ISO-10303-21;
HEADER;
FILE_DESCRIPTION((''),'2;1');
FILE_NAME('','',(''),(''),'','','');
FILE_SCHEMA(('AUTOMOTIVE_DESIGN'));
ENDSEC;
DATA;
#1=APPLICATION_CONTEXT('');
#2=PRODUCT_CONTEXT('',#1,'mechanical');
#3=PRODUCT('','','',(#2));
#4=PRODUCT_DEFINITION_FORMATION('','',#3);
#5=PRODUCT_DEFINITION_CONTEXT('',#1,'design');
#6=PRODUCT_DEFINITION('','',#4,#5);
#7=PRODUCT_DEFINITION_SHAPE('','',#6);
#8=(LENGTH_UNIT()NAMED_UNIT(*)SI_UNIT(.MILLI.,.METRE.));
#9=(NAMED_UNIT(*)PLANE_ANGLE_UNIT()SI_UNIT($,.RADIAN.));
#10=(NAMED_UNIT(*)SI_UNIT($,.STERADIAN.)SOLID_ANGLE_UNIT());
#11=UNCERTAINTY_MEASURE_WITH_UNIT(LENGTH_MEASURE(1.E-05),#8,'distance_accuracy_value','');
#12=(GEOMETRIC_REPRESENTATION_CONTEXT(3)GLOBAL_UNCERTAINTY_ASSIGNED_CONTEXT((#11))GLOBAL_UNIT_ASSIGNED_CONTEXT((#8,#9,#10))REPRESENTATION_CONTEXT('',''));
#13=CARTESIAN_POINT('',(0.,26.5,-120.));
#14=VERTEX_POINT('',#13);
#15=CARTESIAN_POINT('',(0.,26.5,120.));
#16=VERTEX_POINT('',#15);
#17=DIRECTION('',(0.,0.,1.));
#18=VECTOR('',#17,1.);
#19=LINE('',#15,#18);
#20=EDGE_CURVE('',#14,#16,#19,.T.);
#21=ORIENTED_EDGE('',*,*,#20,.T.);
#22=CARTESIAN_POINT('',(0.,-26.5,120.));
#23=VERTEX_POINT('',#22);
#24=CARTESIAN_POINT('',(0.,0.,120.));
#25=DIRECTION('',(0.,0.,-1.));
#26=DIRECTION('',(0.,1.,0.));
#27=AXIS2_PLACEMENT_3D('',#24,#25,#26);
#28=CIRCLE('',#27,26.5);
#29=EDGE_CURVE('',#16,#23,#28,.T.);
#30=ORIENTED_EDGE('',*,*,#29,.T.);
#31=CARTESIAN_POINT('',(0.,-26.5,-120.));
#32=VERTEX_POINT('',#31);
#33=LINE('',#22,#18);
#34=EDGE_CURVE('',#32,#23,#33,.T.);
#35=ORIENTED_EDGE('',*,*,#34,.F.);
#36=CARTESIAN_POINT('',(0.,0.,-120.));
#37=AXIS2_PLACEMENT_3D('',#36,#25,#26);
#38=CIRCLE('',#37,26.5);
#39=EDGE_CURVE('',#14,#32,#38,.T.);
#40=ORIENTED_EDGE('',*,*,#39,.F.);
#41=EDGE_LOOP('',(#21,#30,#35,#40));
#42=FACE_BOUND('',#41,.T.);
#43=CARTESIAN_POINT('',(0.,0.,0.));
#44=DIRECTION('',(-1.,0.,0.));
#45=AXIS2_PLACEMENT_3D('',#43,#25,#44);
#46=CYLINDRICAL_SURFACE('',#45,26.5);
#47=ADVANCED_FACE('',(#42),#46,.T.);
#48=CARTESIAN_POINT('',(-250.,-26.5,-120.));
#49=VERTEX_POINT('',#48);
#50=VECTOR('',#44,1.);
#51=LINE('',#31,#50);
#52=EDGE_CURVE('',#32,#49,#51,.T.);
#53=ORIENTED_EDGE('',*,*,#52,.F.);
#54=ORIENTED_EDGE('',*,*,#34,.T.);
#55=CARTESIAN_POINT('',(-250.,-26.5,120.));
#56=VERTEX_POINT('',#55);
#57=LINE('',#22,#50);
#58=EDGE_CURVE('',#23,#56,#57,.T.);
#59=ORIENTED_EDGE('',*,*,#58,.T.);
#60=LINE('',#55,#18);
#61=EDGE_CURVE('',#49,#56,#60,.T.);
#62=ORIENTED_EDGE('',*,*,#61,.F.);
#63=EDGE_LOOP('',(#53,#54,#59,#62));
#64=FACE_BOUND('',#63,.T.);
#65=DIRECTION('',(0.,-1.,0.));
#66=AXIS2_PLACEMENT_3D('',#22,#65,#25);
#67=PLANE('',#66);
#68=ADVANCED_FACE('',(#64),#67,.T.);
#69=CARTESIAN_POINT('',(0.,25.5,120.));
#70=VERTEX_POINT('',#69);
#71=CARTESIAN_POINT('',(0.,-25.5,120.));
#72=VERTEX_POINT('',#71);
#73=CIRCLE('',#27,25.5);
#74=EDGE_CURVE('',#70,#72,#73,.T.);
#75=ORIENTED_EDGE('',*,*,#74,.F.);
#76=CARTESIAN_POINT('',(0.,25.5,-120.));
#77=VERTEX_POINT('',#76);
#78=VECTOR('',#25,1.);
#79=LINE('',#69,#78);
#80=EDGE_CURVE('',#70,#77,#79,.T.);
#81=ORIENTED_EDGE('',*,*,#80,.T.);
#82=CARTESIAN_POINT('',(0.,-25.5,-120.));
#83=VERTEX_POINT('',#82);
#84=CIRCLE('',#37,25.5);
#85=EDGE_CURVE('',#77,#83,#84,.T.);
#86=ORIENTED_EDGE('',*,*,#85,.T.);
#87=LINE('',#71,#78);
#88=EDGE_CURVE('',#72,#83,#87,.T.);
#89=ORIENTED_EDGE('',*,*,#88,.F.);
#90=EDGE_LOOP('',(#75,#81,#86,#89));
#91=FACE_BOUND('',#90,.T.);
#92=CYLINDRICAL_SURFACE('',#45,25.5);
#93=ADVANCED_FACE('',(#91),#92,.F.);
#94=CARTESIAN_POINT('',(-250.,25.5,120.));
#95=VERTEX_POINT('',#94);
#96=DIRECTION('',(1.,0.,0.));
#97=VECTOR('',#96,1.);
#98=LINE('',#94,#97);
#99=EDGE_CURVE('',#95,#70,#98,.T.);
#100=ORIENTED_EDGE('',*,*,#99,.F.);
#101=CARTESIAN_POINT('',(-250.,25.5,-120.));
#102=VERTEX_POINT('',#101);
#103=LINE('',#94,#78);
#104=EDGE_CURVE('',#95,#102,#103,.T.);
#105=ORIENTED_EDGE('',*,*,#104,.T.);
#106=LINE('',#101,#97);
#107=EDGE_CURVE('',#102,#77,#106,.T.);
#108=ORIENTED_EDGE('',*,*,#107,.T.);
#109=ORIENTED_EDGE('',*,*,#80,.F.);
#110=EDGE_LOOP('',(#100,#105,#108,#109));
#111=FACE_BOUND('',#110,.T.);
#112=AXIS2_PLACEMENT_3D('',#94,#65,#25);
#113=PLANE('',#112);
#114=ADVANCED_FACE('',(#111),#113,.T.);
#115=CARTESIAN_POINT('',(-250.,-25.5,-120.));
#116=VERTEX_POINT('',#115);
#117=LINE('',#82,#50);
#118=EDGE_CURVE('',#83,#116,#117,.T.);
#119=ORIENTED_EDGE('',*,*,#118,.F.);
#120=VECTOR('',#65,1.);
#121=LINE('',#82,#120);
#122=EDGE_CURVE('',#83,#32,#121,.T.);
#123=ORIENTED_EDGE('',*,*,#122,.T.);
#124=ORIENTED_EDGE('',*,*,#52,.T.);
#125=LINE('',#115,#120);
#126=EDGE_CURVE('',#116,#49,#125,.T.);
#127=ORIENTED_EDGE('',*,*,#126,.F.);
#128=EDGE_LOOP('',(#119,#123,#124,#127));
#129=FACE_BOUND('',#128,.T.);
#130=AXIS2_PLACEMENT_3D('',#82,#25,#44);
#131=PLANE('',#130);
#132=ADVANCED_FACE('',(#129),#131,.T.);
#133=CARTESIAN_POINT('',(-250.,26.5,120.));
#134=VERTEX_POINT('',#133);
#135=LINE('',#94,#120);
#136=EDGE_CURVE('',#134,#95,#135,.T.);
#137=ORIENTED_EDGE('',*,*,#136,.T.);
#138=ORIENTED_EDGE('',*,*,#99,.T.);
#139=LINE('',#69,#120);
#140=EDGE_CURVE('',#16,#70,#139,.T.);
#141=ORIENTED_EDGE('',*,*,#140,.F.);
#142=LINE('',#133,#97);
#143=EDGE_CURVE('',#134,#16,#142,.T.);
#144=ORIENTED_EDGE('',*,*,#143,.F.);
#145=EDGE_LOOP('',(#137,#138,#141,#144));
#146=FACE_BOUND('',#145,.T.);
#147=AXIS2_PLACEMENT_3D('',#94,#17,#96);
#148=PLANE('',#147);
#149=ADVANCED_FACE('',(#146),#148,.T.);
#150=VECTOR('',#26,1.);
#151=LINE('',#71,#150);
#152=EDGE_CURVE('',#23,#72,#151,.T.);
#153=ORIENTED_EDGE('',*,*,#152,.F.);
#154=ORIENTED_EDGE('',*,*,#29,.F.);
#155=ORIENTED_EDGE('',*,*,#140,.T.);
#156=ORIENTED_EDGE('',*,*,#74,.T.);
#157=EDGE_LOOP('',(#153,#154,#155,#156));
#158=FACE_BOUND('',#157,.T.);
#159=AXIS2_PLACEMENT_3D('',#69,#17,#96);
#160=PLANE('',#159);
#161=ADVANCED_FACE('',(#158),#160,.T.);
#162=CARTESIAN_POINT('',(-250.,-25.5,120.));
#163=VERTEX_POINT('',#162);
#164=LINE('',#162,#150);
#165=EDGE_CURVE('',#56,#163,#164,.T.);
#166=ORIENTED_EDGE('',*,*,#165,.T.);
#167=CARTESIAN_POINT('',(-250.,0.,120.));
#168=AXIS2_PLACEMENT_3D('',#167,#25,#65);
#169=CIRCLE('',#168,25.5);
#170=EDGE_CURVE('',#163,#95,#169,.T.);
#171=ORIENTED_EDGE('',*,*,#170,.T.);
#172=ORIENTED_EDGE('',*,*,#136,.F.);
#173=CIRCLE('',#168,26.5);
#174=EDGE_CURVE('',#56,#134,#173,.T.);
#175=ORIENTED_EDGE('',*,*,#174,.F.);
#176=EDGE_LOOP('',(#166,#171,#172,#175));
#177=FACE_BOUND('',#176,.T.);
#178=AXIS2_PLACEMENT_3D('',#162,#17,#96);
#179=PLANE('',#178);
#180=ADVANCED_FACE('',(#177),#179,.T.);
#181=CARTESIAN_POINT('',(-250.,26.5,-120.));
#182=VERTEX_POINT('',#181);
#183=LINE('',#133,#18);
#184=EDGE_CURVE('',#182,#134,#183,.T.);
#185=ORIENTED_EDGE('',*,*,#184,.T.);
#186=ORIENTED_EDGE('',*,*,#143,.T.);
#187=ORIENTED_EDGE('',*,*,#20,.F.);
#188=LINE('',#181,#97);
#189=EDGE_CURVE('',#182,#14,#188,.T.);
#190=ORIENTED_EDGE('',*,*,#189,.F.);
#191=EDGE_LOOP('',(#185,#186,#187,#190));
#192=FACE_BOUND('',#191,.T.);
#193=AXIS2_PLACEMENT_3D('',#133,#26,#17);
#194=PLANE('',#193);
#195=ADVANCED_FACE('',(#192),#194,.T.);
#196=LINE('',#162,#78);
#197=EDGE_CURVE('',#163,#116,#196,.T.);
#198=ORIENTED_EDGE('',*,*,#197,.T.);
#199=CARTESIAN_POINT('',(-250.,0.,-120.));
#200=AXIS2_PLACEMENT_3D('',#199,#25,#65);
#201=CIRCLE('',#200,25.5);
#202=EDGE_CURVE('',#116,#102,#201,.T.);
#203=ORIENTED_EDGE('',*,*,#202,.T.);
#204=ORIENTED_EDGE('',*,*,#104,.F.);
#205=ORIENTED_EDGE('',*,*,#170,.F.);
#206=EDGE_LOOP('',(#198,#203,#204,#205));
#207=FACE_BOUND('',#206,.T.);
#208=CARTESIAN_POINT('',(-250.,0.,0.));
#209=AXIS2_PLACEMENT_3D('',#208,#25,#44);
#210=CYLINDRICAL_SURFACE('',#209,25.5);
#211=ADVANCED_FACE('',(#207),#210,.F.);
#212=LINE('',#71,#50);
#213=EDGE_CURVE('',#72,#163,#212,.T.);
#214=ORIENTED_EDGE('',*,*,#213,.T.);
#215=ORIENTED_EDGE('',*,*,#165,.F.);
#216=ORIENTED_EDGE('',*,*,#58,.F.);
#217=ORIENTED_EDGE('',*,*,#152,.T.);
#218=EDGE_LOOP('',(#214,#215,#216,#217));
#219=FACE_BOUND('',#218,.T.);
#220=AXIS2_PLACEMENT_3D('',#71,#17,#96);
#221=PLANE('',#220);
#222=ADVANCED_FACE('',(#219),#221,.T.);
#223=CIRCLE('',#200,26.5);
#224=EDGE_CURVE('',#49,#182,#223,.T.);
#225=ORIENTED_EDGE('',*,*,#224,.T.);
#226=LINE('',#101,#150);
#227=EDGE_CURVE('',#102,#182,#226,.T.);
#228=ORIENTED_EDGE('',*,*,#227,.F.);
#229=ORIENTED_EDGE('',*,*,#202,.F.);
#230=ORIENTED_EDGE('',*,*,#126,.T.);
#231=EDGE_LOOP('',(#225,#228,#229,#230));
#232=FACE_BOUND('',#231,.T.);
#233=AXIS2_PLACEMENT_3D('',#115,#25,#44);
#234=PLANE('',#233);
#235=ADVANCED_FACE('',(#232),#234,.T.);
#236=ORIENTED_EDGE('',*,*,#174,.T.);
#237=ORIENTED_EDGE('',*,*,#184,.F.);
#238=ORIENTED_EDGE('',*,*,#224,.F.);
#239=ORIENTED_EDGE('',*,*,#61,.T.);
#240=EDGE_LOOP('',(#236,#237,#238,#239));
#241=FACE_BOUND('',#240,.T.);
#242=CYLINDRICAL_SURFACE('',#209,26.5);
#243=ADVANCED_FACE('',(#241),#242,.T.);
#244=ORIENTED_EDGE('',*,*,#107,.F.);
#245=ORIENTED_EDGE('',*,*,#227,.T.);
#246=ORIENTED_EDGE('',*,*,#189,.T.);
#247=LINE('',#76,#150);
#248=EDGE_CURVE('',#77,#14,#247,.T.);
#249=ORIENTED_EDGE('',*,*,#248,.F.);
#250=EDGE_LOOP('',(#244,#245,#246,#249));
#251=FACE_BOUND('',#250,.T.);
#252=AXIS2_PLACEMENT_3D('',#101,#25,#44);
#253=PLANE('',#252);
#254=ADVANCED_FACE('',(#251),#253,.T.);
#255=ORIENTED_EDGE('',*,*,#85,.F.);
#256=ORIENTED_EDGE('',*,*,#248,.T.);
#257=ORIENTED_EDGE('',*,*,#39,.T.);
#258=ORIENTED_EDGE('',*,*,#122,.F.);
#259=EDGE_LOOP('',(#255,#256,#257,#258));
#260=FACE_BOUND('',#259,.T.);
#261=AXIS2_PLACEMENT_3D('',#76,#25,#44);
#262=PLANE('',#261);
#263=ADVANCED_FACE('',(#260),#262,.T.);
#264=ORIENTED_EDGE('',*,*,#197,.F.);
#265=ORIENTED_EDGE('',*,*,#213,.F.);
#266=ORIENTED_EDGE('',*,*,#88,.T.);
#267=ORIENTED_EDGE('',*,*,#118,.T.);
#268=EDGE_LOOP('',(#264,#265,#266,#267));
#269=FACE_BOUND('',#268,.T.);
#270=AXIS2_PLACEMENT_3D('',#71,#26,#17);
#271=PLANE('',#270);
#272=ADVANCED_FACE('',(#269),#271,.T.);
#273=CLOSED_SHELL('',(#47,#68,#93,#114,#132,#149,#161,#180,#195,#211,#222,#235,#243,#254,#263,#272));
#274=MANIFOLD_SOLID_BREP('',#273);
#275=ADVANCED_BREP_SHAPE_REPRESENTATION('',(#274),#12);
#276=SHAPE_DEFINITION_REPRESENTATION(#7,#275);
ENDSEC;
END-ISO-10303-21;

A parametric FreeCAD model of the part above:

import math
import FreeCAD as App
import Part
import Sketcher

V = App.Vector

doc = App.newDocument("Part")
body = doc.addObject("PartDesign::Body", "Body")

sketch1 = doc.addObject("Sketcher::SketchObject", "Sketch")
body.addObject(sketch1)
sketch1.AttachmentSupport = (doc.YZ_Plane, [""])
sketch1.MapMode = "FlatFace"
sketch1.addGeometry([
    Part.LineSegment(V(26.5, 120, 0), V(25.5, 120, 0)),
    Part.LineSegment(V(25.5, 120, 0), V(25.5, -120, 0)),
    Part.LineSegment(V(25.5, -120, 0), V(26.5, -120, 0)),
    Part.LineSegment(V(26.5, -120, 0), V(26.5, 120, 0)),
], False)
sketch1.addConstraint([
    Sketcher.Constraint("Coincident", 0, 2, 1, 1),
    Sketcher.Constraint("Coincident", 1, 2, 2, 1),
    Sketcher.Constraint("Coincident", 2, 2, 3, 1),
    Sketcher.Constraint("Coincident", 3, 2, 0, 1),
    Sketcher.Constraint("Horizontal", 0),
    Sketcher.Constraint("Vertical", 1),
    Sketcher.Constraint("Horizontal", 2),
    Sketcher.Constraint("Vertical", 3),
    Sketcher.Constraint("DistanceX", 0, 2, 0, 1, 1.0),
    Sketcher.Constraint("DistanceY", 1, 2, 1, 1, 240.0),
    Sketcher.Constraint("DistanceY", -1, 1, 0, 2, 120.0),
    Sketcher.Constraint("DistanceX", -1, 1, 0, 2, 25.5),
])

sketch2 = doc.addObject("Sketcher::SketchObject", "Sketch001")
body.addObject(sketch2)
sketch2.AttachmentSupport = (doc.XY_Plane, [""])
sketch2.MapMode = "FlatFace"
sketch2.addGeometry([
    Part.LineSegment(V(-250, -25.5, 0), V(0, -25.5, 0)),
    Part.ArcOfCircle(Part.Circle(V(0, 0, 0), V(0, 0, 1), 25.5), math.radians(-90), math.radians(90)),
    Part.LineSegment(V(0, 25.5, 0), V(-250, 25.5, 0)),
    Part.ArcOfCircle(Part.Circle(V(-250, 0, 0), V(0, 0, 1), 25.5), math.radians(90), math.radians(270)),
], False)
sketch2.addConstraint([
    Sketcher.Constraint("Tangent", 0, 2, 1, 1),
    Sketcher.Constraint("Tangent", 1, 2, 2, 1),
    Sketcher.Constraint("Tangent", 2, 2, 3, 1),
    Sketcher.Constraint("Tangent", 3, 2, 0, 1),
    Sketcher.Constraint("Horizontal", 0),
    Sketcher.Constraint("Horizontal", 2),
    Sketcher.Constraint("Coincident", 1, 3, -1, 1),
    Sketcher.Constraint("Radius", 1, 25.5),
    Sketcher.Constraint("DistanceX", 0, 1, 0, 2, 250.0),
])
doc.recompute()

additivepipe = doc.addObject("PartDesign::AdditivePipe", "AdditivePipe")
body.addObject(additivepipe)
additivepipe.Profile = sketch1
additivepipe.Spine = (sketch2, ["Edge1", "Edge2", "Edge3", "Edge4"])

doc.recompute()
